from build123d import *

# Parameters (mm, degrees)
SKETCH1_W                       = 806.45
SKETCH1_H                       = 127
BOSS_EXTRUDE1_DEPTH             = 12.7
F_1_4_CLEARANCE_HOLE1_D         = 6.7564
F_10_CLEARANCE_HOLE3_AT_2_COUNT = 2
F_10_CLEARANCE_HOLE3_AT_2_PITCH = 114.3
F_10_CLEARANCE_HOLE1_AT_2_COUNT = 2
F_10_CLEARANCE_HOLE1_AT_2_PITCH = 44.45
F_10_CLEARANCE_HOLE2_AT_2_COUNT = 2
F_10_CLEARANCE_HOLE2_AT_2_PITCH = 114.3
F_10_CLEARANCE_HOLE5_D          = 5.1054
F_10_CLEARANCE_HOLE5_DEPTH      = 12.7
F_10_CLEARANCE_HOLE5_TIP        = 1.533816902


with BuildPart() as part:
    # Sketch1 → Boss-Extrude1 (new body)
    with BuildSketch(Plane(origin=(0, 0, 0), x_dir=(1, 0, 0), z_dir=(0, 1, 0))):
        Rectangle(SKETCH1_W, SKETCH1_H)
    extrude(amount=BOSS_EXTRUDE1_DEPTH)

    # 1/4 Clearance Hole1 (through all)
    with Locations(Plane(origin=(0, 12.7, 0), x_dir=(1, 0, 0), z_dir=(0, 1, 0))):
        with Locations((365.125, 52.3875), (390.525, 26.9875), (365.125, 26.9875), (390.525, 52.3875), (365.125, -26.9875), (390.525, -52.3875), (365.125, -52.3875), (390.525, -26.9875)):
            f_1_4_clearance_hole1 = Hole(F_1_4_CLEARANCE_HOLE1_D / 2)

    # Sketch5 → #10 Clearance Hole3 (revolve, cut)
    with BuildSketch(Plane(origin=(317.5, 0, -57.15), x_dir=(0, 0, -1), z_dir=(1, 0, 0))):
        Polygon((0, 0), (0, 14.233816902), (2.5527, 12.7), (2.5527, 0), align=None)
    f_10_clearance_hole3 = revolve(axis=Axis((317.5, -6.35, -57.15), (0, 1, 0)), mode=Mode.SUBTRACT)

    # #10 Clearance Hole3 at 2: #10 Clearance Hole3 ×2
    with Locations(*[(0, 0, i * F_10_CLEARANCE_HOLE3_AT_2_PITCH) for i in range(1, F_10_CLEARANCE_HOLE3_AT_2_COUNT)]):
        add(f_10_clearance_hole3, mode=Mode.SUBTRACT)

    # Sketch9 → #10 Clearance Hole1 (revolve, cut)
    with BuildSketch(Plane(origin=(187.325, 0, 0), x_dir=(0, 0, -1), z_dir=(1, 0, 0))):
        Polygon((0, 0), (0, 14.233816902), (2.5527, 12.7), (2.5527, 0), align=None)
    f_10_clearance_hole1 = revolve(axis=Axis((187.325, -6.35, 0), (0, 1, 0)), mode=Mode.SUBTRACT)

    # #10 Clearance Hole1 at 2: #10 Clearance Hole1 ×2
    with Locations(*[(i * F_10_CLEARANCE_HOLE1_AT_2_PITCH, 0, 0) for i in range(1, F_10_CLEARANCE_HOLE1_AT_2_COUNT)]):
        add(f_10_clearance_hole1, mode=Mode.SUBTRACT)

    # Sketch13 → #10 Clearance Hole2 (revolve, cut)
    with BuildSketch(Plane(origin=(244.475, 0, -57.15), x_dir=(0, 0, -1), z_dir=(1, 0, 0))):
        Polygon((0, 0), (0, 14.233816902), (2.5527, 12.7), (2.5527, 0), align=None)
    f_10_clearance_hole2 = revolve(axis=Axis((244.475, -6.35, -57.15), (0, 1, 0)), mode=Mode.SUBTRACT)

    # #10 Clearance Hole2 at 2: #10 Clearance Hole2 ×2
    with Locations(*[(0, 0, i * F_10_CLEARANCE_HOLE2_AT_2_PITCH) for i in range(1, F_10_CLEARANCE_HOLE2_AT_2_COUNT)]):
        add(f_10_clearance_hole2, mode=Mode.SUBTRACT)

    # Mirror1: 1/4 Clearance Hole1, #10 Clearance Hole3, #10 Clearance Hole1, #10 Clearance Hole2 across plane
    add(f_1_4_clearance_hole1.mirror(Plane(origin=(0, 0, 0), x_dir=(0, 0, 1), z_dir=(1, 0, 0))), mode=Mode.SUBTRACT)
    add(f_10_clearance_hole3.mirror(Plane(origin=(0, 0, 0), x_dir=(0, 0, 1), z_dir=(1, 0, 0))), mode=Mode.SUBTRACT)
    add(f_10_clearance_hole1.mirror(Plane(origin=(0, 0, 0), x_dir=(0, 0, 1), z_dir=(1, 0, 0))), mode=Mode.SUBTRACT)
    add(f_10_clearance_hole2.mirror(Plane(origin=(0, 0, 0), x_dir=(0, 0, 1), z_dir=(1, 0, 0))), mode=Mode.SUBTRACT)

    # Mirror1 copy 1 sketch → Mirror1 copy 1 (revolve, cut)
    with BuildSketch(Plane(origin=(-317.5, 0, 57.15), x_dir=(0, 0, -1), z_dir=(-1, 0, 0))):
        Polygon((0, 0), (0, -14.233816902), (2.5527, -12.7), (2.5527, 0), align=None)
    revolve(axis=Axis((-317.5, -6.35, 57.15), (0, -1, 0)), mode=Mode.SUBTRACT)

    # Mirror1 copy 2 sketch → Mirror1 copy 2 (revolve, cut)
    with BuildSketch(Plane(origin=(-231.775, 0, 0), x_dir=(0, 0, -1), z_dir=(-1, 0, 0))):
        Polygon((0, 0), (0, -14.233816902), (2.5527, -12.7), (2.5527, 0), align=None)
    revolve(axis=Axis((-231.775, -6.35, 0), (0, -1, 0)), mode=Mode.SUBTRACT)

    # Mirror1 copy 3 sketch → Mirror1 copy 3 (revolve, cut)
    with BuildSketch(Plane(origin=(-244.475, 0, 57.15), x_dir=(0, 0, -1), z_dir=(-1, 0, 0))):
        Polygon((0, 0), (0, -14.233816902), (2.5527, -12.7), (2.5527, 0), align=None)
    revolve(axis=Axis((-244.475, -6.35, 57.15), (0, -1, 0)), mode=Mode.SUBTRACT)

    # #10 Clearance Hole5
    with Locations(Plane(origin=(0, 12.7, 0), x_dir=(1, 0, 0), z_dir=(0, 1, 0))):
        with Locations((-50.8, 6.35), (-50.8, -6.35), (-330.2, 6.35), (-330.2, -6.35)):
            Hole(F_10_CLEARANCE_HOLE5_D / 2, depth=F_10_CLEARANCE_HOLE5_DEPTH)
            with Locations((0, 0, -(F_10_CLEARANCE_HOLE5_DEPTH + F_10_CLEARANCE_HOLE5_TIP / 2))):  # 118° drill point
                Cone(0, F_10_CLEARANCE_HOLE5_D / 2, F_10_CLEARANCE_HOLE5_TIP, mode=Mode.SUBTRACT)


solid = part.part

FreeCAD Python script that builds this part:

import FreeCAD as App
import Part
import Sketcher
Q = App.Units.Quantity


def add_polygon(sketch, points):
    """Adds a closed chain of lines whose ends are joined by coincident constraints."""
    first, n = sketch.GeometryCount, len(points)
    for a, b in zip(points, points[1:] + points[:1]):
        sketch.addGeometry(Part.LineSegment(App.Vector(*a, 0), App.Vector(*b, 0)), False)
    for i in range(n):
        sketch.addConstraint(Sketcher.Constraint("Coincident", first + i, 2, first + (i + 1) % n, 1))

doc = App.newDocument("Part")
body = doc.addObject("PartDesign::Body", "Body")

# Sketch on XZ plane
sketch1 = body.newObject("Sketcher::SketchObject", "Sketch")
sketch1.AttachmentSupport = (doc.getObject("XZ_Plane"), [""])
sketch1.MapMode = "FlatFace"
add_polygon(sketch1, [(-403, -64), (-403, 64), (403, 64), (403, -64)])  # lines 0-3
sketch1.addConstraint([
    Sketcher.Constraint("Vertical", 0),
    Sketcher.Constraint("Horizontal", 1),
    Sketcher.Constraint("Vertical", 2),
    Sketcher.Constraint("Horizontal", 3),
    Sketcher.Constraint("Symmetric", 0, 2, 2, 2, -1, 1),
    Sketcher.Constraint("DistanceY", 0, 1, 0, 2, Q("5 in")),
    Sketcher.Constraint("DistanceX", 1, 1, 1, 2, Q("31.75 in")),
])
pad1 = body.newObject("PartDesign::Pad", "Pad")
pad1.Profile = sketch1
pad1.Length = Q("0.5 in")
pad1.Reversed = True

# Sketch on XZ plane
sketch2 = body.newObject("Sketcher::SketchObject", "Sketch001")
sketch2.AttachmentSupport = (doc.getObject("XZ_Plane"), [""])
sketch2.MapMode = "FlatFace"
sketch2.AttachmentOffset = App.Placement(App.Vector(0, 0, -0.5 * 25.4), App.Rotation())
sketch2.addGeometry([
    Part.Circle(App.Vector(365.1, -52.4, 0), App.Vector(0, 0, 1), 3.4),  # 0
    Part.Circle(App.Vector(390.5, -27, 0), App.Vector(0, 0, 1), 3.4),  # 1
    Part.Circle(App.Vector(365.1, -27, 0), App.Vector(0, 0, 1), 3.4),  # 2
    Part.Circle(App.Vector(390.5, -52.4, 0), App.Vector(0, 0, 1), 3.4),  # 3
    Part.Circle(App.Vector(365.1, 27, 0), App.Vector(0, 0, 1), 3.4),  # 4
    Part.Circle(App.Vector(390.5, 52.4, 0), App.Vector(0, 0, 1), 3.4),  # 5
    Part.Circle(App.Vector(365.1, 52.4, 0), App.Vector(0, 0, 1), 3.4),  # 6
    Part.Circle(App.Vector(390.5, 27, 0), App.Vector(0, 0, 1), 3.4),  # 7
], False)
sketch2.addConstraint([
    Sketcher.Constraint("Equal", 0, 1),
    Sketcher.Constraint("Equal", 1, 2),
    Sketcher.Constraint("Equal", 2, 3),
    Sketcher.Constraint("Equal", 3, 4),
    Sketcher.Constraint("Equal", 4, 5),
    Sketcher.Constraint("Equal", 5, 6),
    Sketcher.Constraint("Equal", 6, 7),
    Sketcher.Constraint("Symmetric", 2, 3, 4, 3, -1),
    Sketcher.Constraint("Symmetric", 3, 3, 5, 3, -1),
    Sketcher.Constraint("Symmetric", 0, 3, 6, 3, -1),
    Sketcher.Constraint("Symmetric", 1, 3, 7, 3, -1),
    Sketcher.Constraint("Horizontal", 1, 3, 2, 3),
    Sketcher.Constraint("Horizontal", 0, 3, 3, 3),
    Sketcher.Constraint("Vertical", 0, 3, 2, 3),
    Sketcher.Constraint("Vertical", 1, 3, 3, 3),
    Sketcher.Constraint("Diameter", 0, Q("0.266 in")),
    Sketcher.Constraint("DistanceX", 0, 3, 1, 3, Q("1 in")),
    Sketcher.Constraint("DistanceY", 0, 3, 1, 3, Q("1 in")),
    Sketcher.Constraint("DistanceX", -1, 1, 0, 3, Q("14.375 in")),
    Sketcher.Constraint("DistanceY", 0, 3, -1, 1, Q("2.0625 in")),
])
doc.recompute()
hole = body.newObject("PartDesign::Hole", "Hole")
hole.Profile = sketch2
hole.ThreadType = "None"
hole.Diameter = Q("0.266 in")
hole.DepthType = "ThroughAll"
hole.Reversed = True

# Sketch on YZ plane
sketch3 = body.newObject("Sketcher::SketchObject", "Sketch002")
sketch3.AttachmentSupport = (doc.getObject("YZ_Plane"), [""])
sketch3.MapMode = "FlatFace"
sketch3.AttachmentOffset = App.Placement(App.Vector(0, 0, 12.5 * 25.4), App.Rotation())
add_polygon(sketch3, [(14.2, -57.1), (0, -57.1), (0, -59.7), (12.7, -59.7)])  # lines 0-3
sketch3.addGeometry(Part.LineSegment(App.Vector(0, -57.1, 0), App.Vector(14.2, -57.1, 0)), True)  # axis
sketch3.addConstraint([
    Sketcher.Constraint("Horizontal", 0),
    Sketcher.Constraint("Vertical", 1),
    Sketcher.Constraint("Horizontal", 2),
    Sketcher.Constraint("Horizontal", 4),
    Sketcher.Constraint("Coincident", 4, 1, 0, 2),
    Sketcher.Constraint("PointOnObject", 0, 2, -2),
    Sketcher.Constraint("Equal", 0, 4),
    Sketcher.Constraint("DistanceX", 2, 1, 2, 2, Q("0.5 in")),
    Sketcher.Constraint("Angle", 3, Q("59 deg")),
    Sketcher.Constraint("DistanceY", 0, 2, -1, 1, Q("2.25 in")),
    Sketcher.Constraint("DistanceY", 1, 2, 1, 1, Q("0.1005 in")),
])
groove = body.newObject("PartDesign::Groove", "Groove")
groove.Profile = sketch3
groove.ReferenceAxis = (sketch3, ["Axis0"])
groove.Angle = 360
doc.recompute()

linearpattern = body.newObject("PartDesign::LinearPattern", "LinearPattern")
linearpattern.Originals = [groove]
linearpattern.Direction = (doc.getObject("Z_Axis"), [""])
linearpattern.Mode = "offset"
linearpattern.Offset = Q("4.5 in")
linearpattern.Occurrences = 2
body.Tip = linearpattern

# Sketch on YZ plane
sketch4 = body.newObject("Sketcher::SketchObject", "Sketch003")
sketch4.AttachmentSupport = (doc.getObject("YZ_Plane"), [""])
sketch4.MapMode = "FlatFace"
sketch4.AttachmentOffset = App.Placement(App.Vector(0, 0, 7.375 * 25.4), App.Rotation())
add_polygon(sketch4, [(14.2, 0), (0, 0), (0, -2.6), (12.7, -2.6)])  # lines 0-3
sketch4.addConstraint([
    Sketcher.Constraint("Horizontal", 0),
    Sketcher.Constraint("Vertical", 1),
    Sketcher.Constraint("Horizontal", 2),
    Sketcher.Constraint("Coincident", 0, 2, -1, 1),
    Sketcher.Constraint("DistanceX", 2, 1, 2, 2, Q("0.5 in")),
    Sketcher.Constraint("Angle", 3, Q("59 deg")),
    Sketcher.Constraint("DistanceY", 1, 2, 1, 1, Q("0.1005 in")),
])
groove2 = body.newObject("PartDesign::Groove", "Groove001")
groove2.Profile = sketch4
groove2.ReferenceAxis = (sketch4, ["H_Axis"])
groove2.Angle = 360
doc.recompute()

linearpattern2 = body.newObject("PartDesign::LinearPattern", "LinearPattern001")
linearpattern2.Originals = [groove2]
linearpattern2.Direction = (doc.getObject("X_Axis"), [""])
linearpattern2.Mode = "offset"
linearpattern2.Offset = Q("1.75 in")
linearpattern2.Occurrences = 2
body.Tip = linearpattern2

# Sketch on YZ plane
sketch5 = body.newObject("Sketcher::SketchObject", "Sketch004")
sketch5.AttachmentSupport = (doc.getObject("YZ_Plane"), [""])
sketch5.MapMode = "FlatFace"
sketch5.AttachmentOffset = App.Placement(App.Vector(0, 0, 9.625 * 25.4), App.Rotation())
add_polygon(sketch5, [(14.2, -57.1), (0, -57.1), (0, -59.7), (12.7, -59.7)])  # lines 0-3
sketch5.addGeometry(Part.LineSegment(App.Vector(0, -57.1, 0), App.Vector(14.2, -57.1, 0)), True)  # axis
sketch5.addConstraint([
    Sketcher.Constraint("Horizontal", 0),
    Sketcher.Constraint("Vertical", 1),
    Sketcher.Constraint("Horizontal", 2),
    Sketcher.Constraint("Horizontal", 4),
    Sketcher.Constraint("Coincident", 4, 1, 0, 2),
    Sketcher.Constraint("PointOnObject", 0, 2, -2),
    Sketcher.Constraint("Equal", 0, 4),
    Sketcher.Constraint("DistanceX", 2, 1, 2, 2, Q("0.5 in")),
    Sketcher.Constraint("Angle", 3, Q("59 deg")),
    Sketcher.Constraint("DistanceY", 0, 2, -1, 1, Q("2.25 in")),
    Sketcher.Constraint("DistanceY", 1, 2, 1, 1, Q("0.1005 in")),
])
groove3 = body.newObject("PartDesign::Groove", "Groove002")
groove3.Profile = sketch5
groove3.ReferenceAxis = (sketch5, ["Axis0"])
groove3.Angle = 360
doc.recompute()

linearpattern3 = body.newObject("PartDesign::LinearPattern", "LinearPattern002")
linearpattern3.Originals = [groove3]
linearpattern3.Direction = (doc.getObject("Z_Axis"), [""])
linearpattern3.Mode = "offset"
linearpattern3.Offset = Q("4.5 in")
linearpattern3.Occurrences = 2
body.Tip = linearpattern3
doc.recompute()

mirrored = body.newObject("PartDesign::Mirrored", "Mirrored")
mirrored.Originals = [hole, groove, groove2, groove3]
mirrored.MirrorPlane = (doc.getObject("YZ_Plane"), [""])
body.Tip = mirrored

# Sketch on YZ plane
sketch6 = body.newObject("Sketcher::SketchObject", "Sketch005")
sketch6.AttachmentSupport = (doc.getObject("YZ_Plane"), [""])
sketch6.MapMode = "FlatFace"
sketch6.AttachmentOffset = App.Placement(App.Vector(0, 0, -12.5 * 25.4), App.Rotation())
add_polygon(sketch6, [(0, 57.1), (14.2, 57.1), (12.7, 54.6), (0, 54.6)])  # lines 0-3
sketch6.addGeometry(Part.LineSegment(App.Vector(14.2, 57.1, 0), App.Vector(0, 57.1, 0)), True)  # axis
sketch6.addConstraint([
    Sketcher.Constraint("Horizontal", 0),
    Sketcher.Constraint("Horizontal", 2),
    Sketcher.Constraint("Vertical", 3),
    Sketcher.Constraint("Horizontal", 4),
    Sketcher.Constraint("Coincident", 4, 1, 0, 2),
    Sketcher.Constraint("PointOnObject", 2, 2, -2),
    Sketcher.Constraint("PointOnObject", 4, 2, -2),
    Sketcher.Constraint("DistanceX", 2, 2, 2, 1, Q("0.5 in")),
    Sketcher.Constraint("Angle", 1, Q("-121 deg")),
    Sketcher.Constraint("DistanceY", -1, 1, 0, 2, Q("2.25 in")),
    Sketcher.Constraint("DistanceY", 3, 1, 3, 2, Q("0.1005 in")),
])
groove4 = body.newObject("PartDesign::Groove", "Groove003")
groove4.Profile = sketch6
groove4.ReferenceAxis = (sketch6, ["Axis0"])
groove4.Angle = 360

# Sketch on YZ plane
sketch7 = body.newObject("Sketcher::SketchObject", "Sketch006")
sketch7.AttachmentSupport = (doc.getObject("YZ_Plane"), [""])
sketch7.MapMode = "FlatFace"
sketch7.AttachmentOffset = App.Placement(App.Vector(0, 0, -9.125 * 25.4), App.Rotation())
add_polygon(sketch7, [(0, 0), (14.2, 0), (12.7, -2.6), (0, -2.6)])  # lines 0-3
sketch7.addConstraint([
    Sketcher.Constraint("Horizontal", 0),
    Sketcher.Constraint("Horizontal", 2),
    Sketcher.Constraint("Vertical", 3),
    Sketcher.Constraint("Coincident", 3, 2, -1, 1),
    Sketcher.Constraint("DistanceX", 2, 2, 2, 1, Q("0.5 in")),
    Sketcher.Constraint("Angle", 1, Q("-121 deg")),
    Sketcher.Constraint("DistanceY", 3, 1, 3, 2, Q("0.1005 in")),
])
groove5 = body.newObject("PartDesign::Groove", "Groove004")
groove5.Profile = sketch7
groove5.ReferenceAxis = (sketch7, ["H_Axis"])
groove5.Angle = 360

# Sketch on YZ plane
sketch8 = body.newObject("Sketcher::SketchObject", "Sketch007")
sketch8.AttachmentSupport = (doc.getObject("YZ_Plane"), [""])
sketch8.MapMode = "FlatFace"
sketch8.AttachmentOffset = App.Placement(App.Vector(0, 0, -9.625 * 25.4), App.Rotation())
add_polygon(sketch8, [(0, 57.1), (14.2, 57.1), (12.7, 54.6), (0, 54.6)])  # lines 0-3
sketch8.addGeometry(Part.LineSegment(App.Vector(14.2, 57.1, 0), App.Vector(0, 57.1, 0)), True)  # axis
sketch8.addConstraint([
    Sketcher.Constraint("Horizontal", 0),
    Sketcher.Constraint("Horizontal", 2),
    Sketcher.Constraint("Vertical", 3),
    Sketcher.Constraint("Horizontal", 4),
    Sketcher.Constraint("Coincident", 4, 1, 0, 2),
    Sketcher.Constraint("PointOnObject", 2, 2, -2),
    Sketcher.Constraint("PointOnObject", 4, 2, -2),
    Sketcher.Constraint("DistanceX", 2, 2, 2, 1, Q("0.5 in")),
    Sketcher.Constraint("Angle", 1, Q("-121 deg")),
    Sketcher.Constraint("DistanceY", -1, 1, 0, 2, Q("2.25 in")),
    Sketcher.Constraint("DistanceY", 3, 1, 3, 2, Q("0.1005 in")),
])
groove6 = body.newObject("PartDesign::Groove", "Groove005")
groove6.Profile = sketch8
groove6.ReferenceAxis = (sketch8, ["Axis0"])
groove6.Angle = 360

# Sketch on XZ plane
sketch9 = body.newObject("Sketcher::SketchObject", "Sketch008")
sketch9.AttachmentSupport = (doc.getObject("XZ_Plane"), [""])
sketch9.MapMode = "FlatFace"
sketch9.AttachmentOffset = App.Placement(App.Vector(0, 0, -0.5 * 25.4), App.Rotation())
sketch9.addGeometry([
    Part.Circle(App.Vector(-50.8, -6.3, 0), App.Vector(0, 0, 1), 2.6),
    Part.Circle(App.Vector(-50.8, 6.3, 0), App.Vector(0, 0, 1), 2.6),
    Part.Circle(App.Vector(-330.2, -6.3, 0), App.Vector(0, 0, 1), 2.6),
    Part.Circle(App.Vector(-330.2, 6.3, 0), App.Vector(0, 0, 1), 2.6),
], False)
sketch9.addConstraint([
    Sketcher.Constraint("Equal", 0, 1),
    Sketcher.Constraint("Equal", 1, 2),
    Sketcher.Constraint("Equal", 2, 3),
    Sketcher.Constraint("Symmetric", 0, 3, 1, 3, -1),
    Sketcher.Constraint("Symmetric", 2, 3, 3, 3, -1),
    Sketcher.Constraint("Horizontal", 0, 3, 2, 3),
    Sketcher.Constraint("Diameter", 0, Q("0.201 in")),
    Sketcher.Constraint("DistanceX", 0, 3, -1, 1, Q("2 in")),
    Sketcher.Constraint("DistanceX", 2, 3, -1, 1, Q("13 in")),
    Sketcher.Constraint("DistanceY", 0, 3, 1, 3, Q("0.5 in")),
])
doc.recompute()
hole2 = body.newObject("PartDesign::Hole", "Hole001")
hole2.Profile = sketch9
hole2.ThreadType = "None"
hole2.Diameter = Q("0.201 in")
hole2.DepthType = "Dimension"
hole2.Depth = Q("0.5 in")
hole2.DrillPoint = "Angled"
hole2.DrillPointAngle = 118
hole2.Reversed = True

doc.recompute()
